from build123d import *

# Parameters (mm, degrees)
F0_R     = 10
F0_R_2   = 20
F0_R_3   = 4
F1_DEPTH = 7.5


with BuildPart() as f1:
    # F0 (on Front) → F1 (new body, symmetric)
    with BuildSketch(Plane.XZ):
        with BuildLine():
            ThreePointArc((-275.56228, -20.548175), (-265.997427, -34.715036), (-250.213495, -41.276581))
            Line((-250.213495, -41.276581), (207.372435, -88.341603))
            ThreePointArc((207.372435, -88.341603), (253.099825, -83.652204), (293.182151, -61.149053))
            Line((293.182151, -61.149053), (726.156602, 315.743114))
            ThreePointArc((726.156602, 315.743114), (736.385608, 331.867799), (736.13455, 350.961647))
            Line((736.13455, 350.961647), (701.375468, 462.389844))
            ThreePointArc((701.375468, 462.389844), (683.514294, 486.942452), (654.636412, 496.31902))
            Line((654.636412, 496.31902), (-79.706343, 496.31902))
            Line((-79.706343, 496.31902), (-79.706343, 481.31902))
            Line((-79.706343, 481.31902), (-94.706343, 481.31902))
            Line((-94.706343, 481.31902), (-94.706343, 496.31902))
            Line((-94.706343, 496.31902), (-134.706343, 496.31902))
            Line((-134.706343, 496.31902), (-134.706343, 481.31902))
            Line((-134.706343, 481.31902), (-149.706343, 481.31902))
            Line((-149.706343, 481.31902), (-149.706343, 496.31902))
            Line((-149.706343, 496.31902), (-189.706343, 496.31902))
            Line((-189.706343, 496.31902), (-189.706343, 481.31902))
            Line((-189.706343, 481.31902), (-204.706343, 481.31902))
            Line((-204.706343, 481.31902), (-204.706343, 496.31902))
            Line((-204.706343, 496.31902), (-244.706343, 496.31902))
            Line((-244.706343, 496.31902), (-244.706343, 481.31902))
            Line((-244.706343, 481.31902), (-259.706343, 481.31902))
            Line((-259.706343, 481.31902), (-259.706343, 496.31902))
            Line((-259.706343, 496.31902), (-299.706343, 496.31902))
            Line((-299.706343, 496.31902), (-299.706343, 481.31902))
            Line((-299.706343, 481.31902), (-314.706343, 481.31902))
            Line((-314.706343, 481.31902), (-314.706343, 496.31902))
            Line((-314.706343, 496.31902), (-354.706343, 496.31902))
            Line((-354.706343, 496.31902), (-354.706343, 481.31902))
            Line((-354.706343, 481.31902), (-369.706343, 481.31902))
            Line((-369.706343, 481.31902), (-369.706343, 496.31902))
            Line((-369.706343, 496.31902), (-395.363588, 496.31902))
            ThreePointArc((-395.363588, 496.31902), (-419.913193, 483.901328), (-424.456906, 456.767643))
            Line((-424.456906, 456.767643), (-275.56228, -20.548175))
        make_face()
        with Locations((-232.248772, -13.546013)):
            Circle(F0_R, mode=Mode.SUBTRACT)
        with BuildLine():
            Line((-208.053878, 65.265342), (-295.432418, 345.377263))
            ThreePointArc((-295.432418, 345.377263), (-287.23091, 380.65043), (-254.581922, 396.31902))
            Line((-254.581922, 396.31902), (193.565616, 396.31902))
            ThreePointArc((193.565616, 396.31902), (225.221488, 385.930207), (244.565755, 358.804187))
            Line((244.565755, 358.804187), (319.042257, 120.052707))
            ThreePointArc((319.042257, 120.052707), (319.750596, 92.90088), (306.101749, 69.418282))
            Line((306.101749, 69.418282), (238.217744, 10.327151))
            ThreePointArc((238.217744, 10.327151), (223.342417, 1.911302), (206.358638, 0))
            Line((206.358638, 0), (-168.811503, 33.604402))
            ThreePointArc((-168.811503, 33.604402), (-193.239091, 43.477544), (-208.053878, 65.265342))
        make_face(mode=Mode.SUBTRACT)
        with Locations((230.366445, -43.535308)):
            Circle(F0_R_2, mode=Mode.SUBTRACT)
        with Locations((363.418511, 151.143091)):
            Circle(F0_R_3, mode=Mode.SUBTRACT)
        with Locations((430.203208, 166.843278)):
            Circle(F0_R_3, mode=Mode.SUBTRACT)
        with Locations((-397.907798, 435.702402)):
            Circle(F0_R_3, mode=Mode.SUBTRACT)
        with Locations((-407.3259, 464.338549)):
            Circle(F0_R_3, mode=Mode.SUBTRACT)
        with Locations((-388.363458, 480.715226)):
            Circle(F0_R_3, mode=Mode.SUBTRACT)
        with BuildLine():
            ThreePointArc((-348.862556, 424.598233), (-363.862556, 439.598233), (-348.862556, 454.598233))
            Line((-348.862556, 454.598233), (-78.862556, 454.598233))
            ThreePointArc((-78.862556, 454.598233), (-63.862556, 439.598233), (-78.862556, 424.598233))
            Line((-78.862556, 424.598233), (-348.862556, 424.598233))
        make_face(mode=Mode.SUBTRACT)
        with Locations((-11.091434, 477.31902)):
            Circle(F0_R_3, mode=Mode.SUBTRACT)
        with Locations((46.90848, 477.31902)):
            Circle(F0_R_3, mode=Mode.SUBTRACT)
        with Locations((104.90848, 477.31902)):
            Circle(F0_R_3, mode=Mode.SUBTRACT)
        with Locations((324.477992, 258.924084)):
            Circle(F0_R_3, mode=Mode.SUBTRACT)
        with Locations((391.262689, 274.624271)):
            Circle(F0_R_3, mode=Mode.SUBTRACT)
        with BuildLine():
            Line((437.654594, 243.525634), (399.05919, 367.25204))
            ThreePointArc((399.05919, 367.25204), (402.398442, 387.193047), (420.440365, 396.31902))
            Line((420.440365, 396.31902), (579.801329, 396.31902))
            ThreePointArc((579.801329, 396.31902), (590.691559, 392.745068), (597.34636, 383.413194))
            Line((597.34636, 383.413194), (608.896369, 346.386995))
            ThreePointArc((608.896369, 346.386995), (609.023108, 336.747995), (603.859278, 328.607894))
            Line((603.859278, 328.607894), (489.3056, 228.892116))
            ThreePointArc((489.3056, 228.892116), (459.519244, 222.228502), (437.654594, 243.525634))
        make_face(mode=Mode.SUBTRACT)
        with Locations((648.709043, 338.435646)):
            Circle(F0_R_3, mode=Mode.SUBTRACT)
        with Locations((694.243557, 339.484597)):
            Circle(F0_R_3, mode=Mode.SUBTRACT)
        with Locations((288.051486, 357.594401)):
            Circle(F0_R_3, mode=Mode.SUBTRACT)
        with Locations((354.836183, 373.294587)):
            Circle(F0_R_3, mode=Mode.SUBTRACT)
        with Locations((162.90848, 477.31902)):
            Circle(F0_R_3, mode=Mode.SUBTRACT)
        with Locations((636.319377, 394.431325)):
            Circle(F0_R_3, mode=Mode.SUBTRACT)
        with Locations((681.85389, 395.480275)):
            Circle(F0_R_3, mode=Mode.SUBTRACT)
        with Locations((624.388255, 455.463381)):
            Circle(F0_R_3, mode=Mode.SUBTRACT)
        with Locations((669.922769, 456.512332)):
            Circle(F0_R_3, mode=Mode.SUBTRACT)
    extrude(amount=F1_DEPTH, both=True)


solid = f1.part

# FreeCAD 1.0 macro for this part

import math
import FreeCAD as App
import Part
import Sketcher
from FreeCAD import Vector

doc = App.newDocument("Part")
body = doc.addObject("PartDesign::Body", "Body")

# Sketch on XZ plane
sketch1 = body.newObject("Sketcher::SketchObject", "Sketch")
sketch1.AttachmentSupport = (doc.getObject("XZ_Plane"), [""])
sketch1.MapMode = "FlatFace"
sketch1.addGeometry([
    Part.ArcOfCircle(Part.Circle(Vector(-247.170532, -11.691611, 0), Vector(0, 0, 1), 29.741051), math.radians(-162.675133), math.radians(-95.872509)),  # 0
    Part.LineSegment(Vector(-250.213495, -41.276581, 0), Vector(207.372435, -88.341603, 0)),  # 1
    Part.ArcOfCircle(Part.Circle(Vector(218.941598, 24.138635, 0), Vector(0, 0, 1), 113.073647), math.radians(-95.872511), math.radians(-48.961338)),  # 2
    Part.LineSegment(Vector(293.182151, -61.149053, 0), Vector(726.156602, 315.743114, 0)),  # 3
    Part.ArcOfCircle(Part.Circle(Vector(704.177389, 340.992879, 0), Vector(0, 0, 1), 33.475909), math.radians(-48.961343), math.radians(17.324872)),  # 4
    Part.LineSegment(Vector(736.13455, 350.961647, 0), Vector(701.375468, 462.389844, 0)),  # 5
    Part.ArcOfCircle(Part.Circle(Vector(654.636411, 447.161792, 0), Vector(0, 0, 1), 49.157228), math.radians(18.046127), math.radians(89.999998)),  # 6
    Part.LineSegment(Vector(654.636412, 496.31902, 0), Vector(-79.706343, 496.31902, 0)),  # 7
    Part.LineSegment(Vector(-79.706343, 496.31902, 0), Vector(-79.706343, 481.31902, 0)),  # 8
    Part.LineSegment(Vector(-79.706343, 481.31902, 0), Vector(-94.706343, 481.31902, 0)),  # 9
    Part.LineSegment(Vector(-94.706343, 481.31902, 0), Vector(-94.706343, 496.31902, 0)),  # 10
    Part.LineSegment(Vector(-94.706343, 496.31902, 0), Vector(-134.706343, 496.31902, 0)),  # 11
    Part.LineSegment(Vector(-134.706343, 496.31902, 0), Vector(-134.706343, 481.31902, 0)),  # 12
    Part.LineSegment(Vector(-134.706343, 481.31902, 0), Vector(-149.706343, 481.31902, 0)),  # 13
    Part.LineSegment(Vector(-149.706343, 481.31902, 0), Vector(-149.706343, 496.31902, 0)),  # 14
    Part.LineSegment(Vector(-149.706343, 496.31902, 0), Vector(-189.706343, 496.31902, 0)),  # 15
    Part.LineSegment(Vector(-189.706343, 496.31902, 0), Vector(-189.706343, 481.31902, 0)),  # 16
    Part.LineSegment(Vector(-189.706343, 481.31902, 0), Vector(-204.706343, 481.31902, 0)),  # 17
    Part.LineSegment(Vector(-204.706343, 481.31902, 0), Vector(-204.706343, 496.31902, 0)),  # 18
    Part.LineSegment(Vector(-204.706343, 496.31902, 0), Vector(-244.706343, 496.31902, 0)),  # 19
    Part.LineSegment(Vector(-244.706343, 496.31902, 0), Vector(-244.706343, 481.31902, 0)),  # 20
    Part.LineSegment(Vector(-244.706343, 481.31902, 0), Vector(-259.706343, 481.31902, 0)),  # 21
    Part.LineSegment(Vector(-259.706343, 481.31902, 0), Vector(-259.706343, 496.31902, 0)),  # 22
    Part.LineSegment(Vector(-259.706343, 496.31902, 0), Vector(-299.706343, 496.31902, 0)),  # 23
    Part.LineSegment(Vector(-299.706343, 496.31902, 0), Vector(-299.706343, 481.31902, 0)),  # 24
    Part.LineSegment(Vector(-299.706343, 481.31902, 0), Vector(-314.706343, 481.31902, 0)),  # 25
    Part.LineSegment(Vector(-314.706343, 481.31902, 0), Vector(-314.706343, 496.31902, 0)),  # 26
    Part.LineSegment(Vector(-314.706343, 496.31902, 0), Vector(-354.706343, 496.31902, 0)),  # 27
    Part.LineSegment(Vector(-354.706343, 496.31902, 0), Vector(-354.706343, 481.31902, 0)),  # 28
    Part.LineSegment(Vector(-354.706343, 481.31902, 0), Vector(-369.706343, 481.31902, 0)),  # 29
    Part.LineSegment(Vector(-369.706343, 481.31902, 0), Vector(-369.706343, 496.31902, 0)),  # 30
    Part.LineSegment(Vector(-369.706343, 496.31902, 0), Vector(-395.363588, 496.31902, 0)),  # 31
    Part.ArcOfCircle(Part.Circle(Vector(-395.363586, 465.843056, 0), Vector(0, 0, 1), 30.475964), math.radians(90.000003), math.radians(197.324866)),  # 32
    Part.LineSegment(Vector(-424.456906, 456.767643, 0), Vector(-275.56228, -20.548175, 0)),  # 33
    Part.Circle(Vector(-232.248772, -13.546013, 0), Vector(0, 0, 1), 10),  # 34
    Part.ArcOfCircle(Part.Circle(Vector(-164.766096, 78.768599, 0), Vector(0, 0, 1), 45.345011), math.radians(-162.675131), math.radians(-95.118387)),  # 35
    Part.LineSegment(Vector(-208.053878, 65.265342, 0), Vector(-295.432418, 345.377263, 0)),  # 36
    Part.ArcOfCircle(Part.Circle(Vector(-254.581921, 354.469014, 0), Vector(0, 0, 1), 41.850006), math.radians(90.000001), math.radians(192.547335)),  # 37
    Part.LineSegment(Vector(-254.581922, 396.31902, 0), Vector(193.565616, 396.31902, 0)),  # 38
    Part.ArcOfCircle(Part.Circle(Vector(193.565616, 342.895126, 0), Vector(0, 0, 1), 53.423894), math.radians(17.324868), math.radians(90)),  # 39
    Part.LineSegment(Vector(244.565755, 358.804187, 0), Vector(319.042257, 120.052707, 0)),  # 40
    Part.ArcOfCircle(Part.Circle(Vector(271.517367, 105.227721, 0), Vector(0, 0, 1), 49.783485), math.radians(-45.997012), math.radians(17.324868)),  # 41
    Part.LineSegment(Vector(306.101749, 69.418282, 0), Vector(238.217744, 10.327151, 0)),  # 42
    Part.ArcOfCircle(Part.Circle(Vector(210.169773, 42.548714, 0), Vector(0, 0, 1), 42.719057), math.radians(-95.118386), math.radians(-48.961339)),  # 43
    Part.LineSegment(Vector(206.358638, 0, 0), Vector(-168.811503, 33.604402, 0)),  # 44
    Part.Circle(Vector(230.366445, -43.535308, 0), Vector(0, 0, 1), 20),  # 45
    Part.Circle(Vector(363.418511, 151.143091, 0), Vector(0, 0, 1), 4),  # 46
    Part.Circle(Vector(430.203208, 166.843278, 0), Vector(0, 0, 1), 4),  # 47
    Part.Circle(Vector(-397.907798, 435.702402, 0), Vector(0, 0, 1), 4),  # 48
    Part.Circle(Vector(-407.3259, 464.338549, 0), Vector(0, 0, 1), 4),  # 49
    Part.Circle(Vector(-388.363458, 480.715226, 0), Vector(0, 0, 1), 4),  # 50
    Part.LineSegment(Vector(-78.862556, 424.598233, 0), Vector(-348.862556, 424.598233, 0)),  # 51
    Part.ArcOfCircle(Part.Circle(Vector(-348.862556, 439.598233, 0), Vector(0, 0, 1), 15), math.radians(90), math.radians(270)),  # 52
    Part.LineSegment(Vector(-348.862556, 454.598233, 0), Vector(-78.862556, 454.598233, 0)),  # 53
    Part.ArcOfCircle(Part.Circle(Vector(-78.862556, 439.598233, 0), Vector(0, 0, 1), 15), math.radians(-90), math.radians(90)),  # 54
    Part.Circle(Vector(-11.091434, 477.31902, 0), Vector(0, 0, 1), 4),  # 55
    Part.Circle(Vector(46.90848, 477.31902, 0), Vector(0, 0, 1), 4),  # 56
    Part.Circle(Vector(104.90848, 477.31902, 0), Vector(0, 0, 1), 4),  # 57
    Part.Circle(Vector(324.477992, 258.924084, 0), Vector(0, 0, 1), 4),  # 58
    Part.Circle(Vector(391.262689, 274.624271, 0), Vector(0, 0, 1), 4),  # 59
    Part.ArcOfCircle(Part.Circle(Vector(468.25768, 253.072008, 0), Vector(0, 0, 1), 32.057481), math.radians(-162.67513), math.radians(-48.96134)),  # 60
    Part.LineSegment(Vector(437.654594, 243.525634, 0), Vector(399.05919, 367.25204, 0)),  # 61
    Part.ArcOfCircle(Part.Circle(Vector(420.440366, 373.921716, 0), Vector(0, 0, 1), 22.397304), math.radians(90.000001), math.radians(197.324866)),  # 62
    Part.LineSegment(Vector(420.440365, 396.31902, 0), Vector(579.801329, 396.31902, 0)),  # 63
    Part.ArcOfCircle(Part.Circle(Vector(579.801328, 377.94017, 0), Vector(0, 0, 1), 18.37885), math.radians(17.324868), math.radians(89.999998)),  # 64
    Part.LineSegment(Vector(597.34636, 383.413194, 0), Vector(608.896369, 346.386995, 0)),  # 65
    Part.ArcOfCircle(Part.Circle(Vector(592.763678, 341.35454, 0), Vector(0, 0, 1), 16.899389), math.radians(-48.961337), math.radians(17.324864)),  # 66
    Part.LineSegment(Vector(603.859278, 328.607894, 0), Vector(489.3056, 228.892116, 0)),  # 67
    Part.Circle(Vector(648.709043, 338.435646, 0), Vector(0, 0, 1), 4),  # 68
    Part.Circle(Vector(694.243557, 339.484597, 0), Vector(0, 0, 1), 4),  # 69
    Part.Circle(Vector(288.051486, 357.594401, 0), Vector(0, 0, 1), 4),  # 70
    Part.Circle(Vector(354.836183, 373.294587, 0), Vector(0, 0, 1), 4),  # 71
    Part.Circle(Vector(162.90848, 477.31902, 0), Vector(0, 0, 1), 4),  # 72
    Part.Circle(Vector(636.319377, 394.431325, 0), Vector(0, 0, 1), 4),  # 73
    Part.Circle(Vector(681.85389, 395.480275, 0), Vector(0, 0, 1), 4),  # 74
    Part.Circle(Vector(624.388255, 455.463381, 0), Vector(0, 0, 1), 4),  # 75
    Part.Circle(Vector(669.922769, 456.512332, 0), Vector(0, 0, 1), 4),  # 76
], False)
sketch1.addConstraint([
    Sketcher.Constraint("Coincident", 0, 2, 1, 1),
    Sketcher.Constraint("Coincident", 1, 2, 2, 1),
    Sketcher.Constraint("Coincident", 2, 2, 3, 1),
    Sketcher.Constraint("Coincident", 3, 2, 4, 1),
    Sketcher.Constraint("Coincident", 4, 2, 5, 1),
    Sketcher.Constraint("Coincident", 5, 2, 6, 1),
    Sketcher.Constraint("Coincident", 6, 2, 7, 1),
    Sketcher.Constraint("Coincident", 7, 2, 8, 1),
    Sketcher.Constraint("Coincident", 8, 2, 9, 1),
    Sketcher.Constraint("Coincident", 9, 2, 10, 1),
    Sketcher.Constraint("Coincident", 10, 2, 11, 1),
    Sketcher.Constraint("Coincident", 11, 2, 12, 1),
    Sketcher.Constraint("Coincident", 12, 2, 13, 1),
    Sketcher.Constraint("Coincident", 13, 2, 14, 1),
    Sketcher.Constraint("Coincident", 14, 2, 15, 1),
    Sketcher.Constraint("Coincident", 15, 2, 16, 1),
    Sketcher.Constraint("Coincident", 16, 2, 17, 1),
    Sketcher.Constraint("Coincident", 17, 2, 18, 1),
    Sketcher.Constraint("Coincident", 18, 2, 19, 1),
    Sketcher.Constraint("Coincident", 19, 2, 20, 1),
    Sketcher.Constraint("Coincident", 20, 2, 21, 1),
    Sketcher.Constraint("Coincident", 21, 2, 22, 1),
    Sketcher.Constraint("Coincident", 22, 2, 23, 1),
    Sketcher.Constraint("Coincident", 23, 2, 24, 1),
    Sketcher.Constraint("Coincident", 24, 2, 25, 1),
    Sketcher.Constraint("Coincident", 25, 2, 26, 1),
    Sketcher.Constraint("Coincident", 26, 2, 27, 1),
    Sketcher.Constraint("Coincident", 27, 2, 28, 1),
    Sketcher.Constraint("Coincident", 28, 2, 29, 1),
    Sketcher.Constraint("Coincident", 29, 2, 30, 1),
    Sketcher.Constraint("Coincident", 30, 2, 31, 1),
    Sketcher.Constraint("Coincident", 31, 2, 32, 1),
    Sketcher.Constraint("Coincident", 32, 2, 33, 1),
    Sketcher.Constraint("Coincident", 33, 2, 0, 1),
    Sketcher.Constraint("Coincident", 35, 1, 36, 1),
    Sketcher.Constraint("Coincident", 36, 2, 37, 2),
    Sketcher.Constraint("Coincident", 37, 1, 38, 1),
    Sketcher.Constraint("Coincident", 38, 2, 39, 2),
    Sketcher.Constraint("Coincident", 39, 1, 40, 1),
    Sketcher.Constraint("Coincident", 40, 2, 41, 2),
    Sketcher.Constraint("Coincident", 41, 1, 42, 1),
    Sketcher.Constraint("Coincident", 42, 2, 43, 2),
    Sketcher.Constraint("Coincident", 43, 1, 44, 1),
    Sketcher.Constraint("Coincident", 44, 2, 35, 2),
    Sketcher.Constraint("Coincident", 51, 2, 52, 2),
    Sketcher.Constraint("Coincident", 52, 1, 53, 1),
    Sketcher.Constraint("Coincident", 53, 2, 54, 2),
    Sketcher.Constraint("Coincident", 54, 1, 51, 1),
    Sketcher.Constraint("Coincident", 60, 1, 61, 1),
    Sketcher.Constraint("Coincident", 61, 2, 62, 2),
    Sketcher.Constraint("Coincident", 62, 1, 63, 1),
    Sketcher.Constraint("Coincident", 63, 2, 64, 2),
    Sketcher.Constraint("Coincident", 64, 1, 65, 1),
    Sketcher.Constraint("Coincident", 65, 2, 66, 2),
    Sketcher.Constraint("Coincident", 66, 1, 67, 1),
    Sketcher.Constraint("Coincident", 67, 2, 60, 2),
    Sketcher.Constraint("Horizontal", 7),
    Sketcher.Constraint("Vertical", 8),
    Sketcher.Constraint("Horizontal", 9),
    Sketcher.Constraint("Vertical", 10),
    Sketcher.Constraint("Horizontal", 11),
    Sketcher.Constraint("Vertical", 12),
    Sketcher.Constraint("Horizontal", 13),
    Sketcher.Constraint("Vertical", 14),
    Sketcher.Constraint("Horizontal", 15),
    Sketcher.Constraint("Vertical", 16),
    Sketcher.Constraint("Horizontal", 17),
    Sketcher.Constraint("Vertical", 18),
    Sketcher.Constraint("Horizontal", 19),
    Sketcher.Constraint("Vertical", 20),
    Sketcher.Constraint("Horizontal", 21),
    Sketcher.Constraint("Vertical", 22),
    Sketcher.Constraint("Horizontal", 23),
    Sketcher.Constraint("Vertical", 24),
    Sketcher.Constraint("Horizontal", 25),
    Sketcher.Constraint("Vertical", 26),
    Sketcher.Constraint("Horizontal", 27),
    Sketcher.Constraint("Vertical", 28),
    Sketcher.Constraint("Horizontal", 29),
    Sketcher.Constraint("Vertical", 30),
    Sketcher.Constraint("Horizontal", 31),
    Sketcher.Constraint("Horizontal", 38),
    Sketcher.Constraint("Horizontal", 51),
    Sketcher.Constraint("Horizontal", 53),
    Sketcher.Constraint("Horizontal", 63),
    Sketcher.Constraint("PointOnObject", 43, 1, -1),
    Sketcher.Constraint("Diameter", 34, 20.0),
    Sketcher.Constraint("Diameter", 45, 40.0),
    Sketcher.Constraint("Diameter", 46, 8.0),
    Sketcher.Constraint("Diameter", 47, 8.0),
    Sketcher.Constraint("Diameter", 48, 8.0),
    Sketcher.Constraint("Diameter", 49, 8.0),
    Sketcher.Constraint("Diameter", 50, 8.0),
    Sketcher.Constraint("Diameter", 55, 8.0),
    Sketcher.Constraint("Diameter", 56, 8.0),
    Sketcher.Constraint("Diameter", 57, 8.0),
    Sketcher.Constraint("Diameter", 58, 8.0),
    Sketcher.Constraint("Diameter", 59, 8.0),
    Sketcher.Constraint("Diameter", 68, 8.0),
    Sketcher.Constraint("Diameter", 69, 8.0),
    Sketcher.Constraint("Diameter", 70, 8.0),
    Sketcher.Constraint("Diameter", 71, 8.0),
    Sketcher.Constraint("Diameter", 72, 8.0),
    Sketcher.Constraint("Diameter", 73, 8.0),
    Sketcher.Constraint("Diameter", 74, 8.0),
    Sketcher.Constraint("Diameter", 75, 8.0),
    Sketcher.Constraint("Diameter", 76, 8.0),
    Sketcher.Constraint("Radius", 52, 15.0),
    Sketcher.Constraint("DistanceX", 9, 2, 9, 1, 15.0),
    Sketcher.Constraint("DistanceX", 11, 2, 11, 1, 40.0),
    Sketcher.Constraint("DistanceX", 13, 2, 13, 1, 15.0),
    Sketcher.Constraint("DistanceX", 15, 2, 15, 1, 40.0),
    Sketcher.Constraint("DistanceX", 17, 2, 17, 1, 15.0),
    Sketcher.Constraint("DistanceX", 19, 2, 19, 1, 40.0),
    Sketcher.Constraint("DistanceX", 21, 2, 21, 1, 15.0),
    Sketcher.Constraint("DistanceX", 23, 2, 23, 1, 40.0),
    Sketcher.Constraint("DistanceX", 25, 2, 25, 1, 15.0),
    Sketcher.Constraint("DistanceX", 27, 2, 27, 1, 40.0),
    Sketcher.Constraint("DistanceX", 29, 2, 29, 1, 15.0),
    Sketcher.Constraint("DistanceX", 51, 2, 51, 1, 270.0),
    Sketcher.Constraint("DistanceX", 53, 1, 53, 2, 270.0),
    Sketcher.Constraint("DistanceY", 8, 2, 8, 1, 15.0),
    Sketcher.Constraint("DistanceY", 10, 1, 10, 2, 15.0),
    Sketcher.Constraint("DistanceY", 12, 2, 12, 1, 15.0),
    Sketcher.Constraint("DistanceY", 14, 1, 14, 2, 15.0),
    Sketcher.Constraint("DistanceY", 16, 2, 16, 1, 15.0),
    Sketcher.Constraint("DistanceY", 18, 1, 18, 2, 15.0),
    Sketcher.Constraint("DistanceY", 20, 2, 20, 1, 15.0),
    Sketcher.Constraint("DistanceY", 22, 1, 22, 2, 15.0),
    Sketcher.Constraint("DistanceY", 24, 2, 24, 1, 15.0),
    Sketcher.Constraint("DistanceY", 26, 1, 26, 2, 15.0),
    Sketcher.Constraint("DistanceY", 28, 2, 28, 1, 15.0),
    Sketcher.Constraint("DistanceY", 30, 1, 30, 2, 15.0),
    Sketcher.Constraint("Distance", 1, 460.0),
    Sketcher.Constraint("Distance", 33, 500.0),
    Sketcher.Constraint("Distance", 42, 89.999999),
    Sketcher.Constraint("Radius", 0, 29.741051),
    Sketcher.Constraint("Radius", 4, 33.475909),
    Sketcher.Constraint("Radius", 35, 45.345011),
    Sketcher.Constraint("Radius", 60, 32.057481),
    Sketcher.Constraint("Radius", 64, 18.37885),
    Sketcher.Constraint("Radius", 66, 16.899389),
    Sketcher.Constraint("Radius", 2, 113.073647),
    Sketcher.Constraint("Radius", 6, 49.157228),
    Sketcher.Constraint("Radius", 32, 30.475964),
    Sketcher.Constraint("Radius", 37, 41.850006),
    Sketcher.Constraint("Radius", 39, 53.423894),
    Sketcher.Constraint("Radius", 41, 49.783485),
    Sketcher.Constraint("Radius", 43, 42.719057),
    Sketcher.Constraint("Radius", 62, 22.397304),
    Sketcher.Constraint("DistanceX", 38, 1, 38, 2, 448.147538),
    Sketcher.Constraint("DistanceY", -1, 1, 35, 3, 78.768599),
    Sketcher.Constraint("DistanceX", 48, 3, -1, 1, 397.907798),
    Sketcher.Constraint("DistanceY", -1, 1, 48, 3, 435.702402),
    Sketcher.Constraint("DistanceX", 49, 3, -1, 1, 407.3259),
    Sketcher.Constraint("DistanceY", -1, 1, 70, 3, 357.594401),
    Sketcher.Constraint("DistanceX", -1, 1, 3, 2, 726.156602),
    Sketcher.Constraint("DistanceX", -1, 1, 67, 2, 489.3056),
    Sketcher.Constraint("Distance", 36, 293.424092),
    Sketcher.Constraint("Distance", 65, 38.785849),
    Sketcher.Constraint("Distance", 67, 151.874229),
    Sketcher.Constraint("DistanceX", 7, 2, 7, 1, 734.342755),
    Sketcher.Constraint("DistanceX", 31, 2, 31, 1, 25.657245),
    Sketcher.Constraint("DistanceX", 63, 1, 63, 2, 159.360964),
    Sketcher.Constraint("DistanceX", 0, 3, -1, 1, 247.170532),
    Sketcher.Constraint("DistanceY", 0, 3, -1, 1, 11.691611),
    Sketcher.Constraint("DistanceX", -1, 1, 4, 3, 704.177389),
    Sketcher.Constraint("DistanceY", -1, 1, 4, 3, 340.992879),
    Sketcher.Constraint("DistanceX", -1, 1, 6, 3, 654.636411),
    Sketcher.Constraint("DistanceX", 34, 3, -1, 1, 232.248772),
    Sketcher.Constraint("DistanceX", 37, 3, -1, 1, 254.581921),
    Sketcher.Constraint("DistanceY", -1, 1, 41, 3, 105.227721),
    Sketcher.Constraint("DistanceX", -1, 1, 46, 3, 363.418511),
    Sketcher.Constraint("DistanceY", -1, 1, 46, 3, 151.143091),
    Sketcher.Constraint("DistanceX", -1, 1, 47, 3, 430.203208),
    Sketcher.Constraint("DistanceY", -1, 1, 47, 3, 166.843278),
    Sketcher.Constraint("DistanceY", -1, 1, 49, 3, 464.338549),
    Sketcher.Constraint("DistanceX", 50, 3, -1, 1, 388.363458),
    Sketcher.Constraint("DistanceY", -1, 1, 55, 3, 477.31902),
    Sketcher.Constraint("DistanceX", -1, 1, 56, 3, 46.90848),
    Sketcher.Constraint("DistanceY", -1, 1, 56, 3, 477.31902),
    Sketcher.Constraint("DistanceX", -1, 1, 57, 3, 104.90848),
    Sketcher.Constraint("DistanceY", -1, 1, 57, 3, 477.31902),
    Sketcher.Constraint("DistanceX", -1, 1, 58, 3, 324.477992),
    Sketcher.Constraint("DistanceX", -1, 1, 59, 3, 391.262689),
    Sketcher.Constraint("DistanceY", -1, 1, 59, 3, 274.624271),
    Sketcher.Constraint("DistanceX", -1, 1, 60, 3, 468.25768),
    Sketcher.Constraint("DistanceX", -1, 1, 64, 3, 579.801328),
    Sketcher.Constraint("DistanceY", -1, 1, 64, 3, 377.94017),
    Sketcher.Constraint("DistanceY", -1, 1, 66, 3, 341.35454),
    Sketcher.Constraint("DistanceX", -1, 1, 72, 3, 162.90848),
    Sketcher.Constraint("DistanceY", -1, 1, 72, 3, 477.31902),
    Sketcher.Constraint("DistanceX", -1, 1, 74, 3, 681.85389),
    Sketcher.Constraint("DistanceY", -1, 1, 75, 3, 455.463381),
    Sketcher.Constraint("DistanceX", -1, 1, 76, 3, 669.922769),
    Sketcher.Constraint("DistanceY", -1, 1, 76, 3, 456.512332),
    Sketcher.Constraint("DistanceY", 0, 2, -1, 1, 41.276581),
    Sketcher.Constraint("DistanceX", -1, 1, 2, 2, 293.182151),
    Sketcher.Constraint("DistanceX", -1, 1, 4, 2, 736.13455),
    Sketcher.Constraint("DistanceX", -1, 1, 5, 2, 701.375468),
    Sketcher.Constraint("DistanceX", -1, 1, 6, 2, 654.636412),
    Sketcher.Constraint("DistanceY", -1, 1, 6, 2, 496.31902),
    Sketcher.Constraint("DistanceX", 33, 2, -1, 1, 275.56228),
    Sketcher.Constraint("DistanceX", 35, 1, -1, 1, 208.053878),
    Sketcher.Constraint("DistanceY", -1, 1, 35, 1, 65.265342),
    Sketcher.Constraint("DistanceX", 36, 2, -1, 1, 295.432418),
    Sketcher.Constraint("DistanceX", 37, 1, -1, 1, 254.581922),
    Sketcher.Constraint("DistanceX", -1, 1, 41, 1, 306.101749),
    Sketcher.Constraint("DistanceY", -1, 1, 41, 1, 69.418282),
    Sketcher.Constraint("DistanceY", -1, 1, 42, 2, 10.327151),
    Sketcher.Constraint("DistanceX", -1, 1, 43, 1, 206.358638),
    Sketcher.Constraint("DistanceX", -1, 1, 61, 2, 399.05919),
    Sketcher.Constraint("DistanceY", -1, 1, 61, 2, 367.25204),
    Sketcher.Constraint("DistanceX", -1, 1, 63, 2, 579.801329),
    Sketcher.Constraint("DistanceX", -1, 1, 64, 1, 597.34636),
    Sketcher.Constraint("DistanceX", -1, 1, 65, 2, 608.896369),
    Sketcher.Constraint("Distance", 3, 574.033606),
    Sketcher.Constraint("Distance", 40, 250.098018),
    Sketcher.Constraint("Distance", 44, 376.672126),
    Sketcher.Constraint("Distance", 61, 129.606438),
    Sketcher.Constraint("DistanceX", -1, 1, 2, 3, 218.941598),
    Sketcher.Constraint("DistanceX", 32, 3, -1, 1, 395.363586),
    Sketcher.Constraint("DistanceY", 34, 3, -1, 1, 13.546013),
    Sketcher.Constraint("DistanceX", -1, 1, 39, 3, 193.565616),
    Sketcher.Constraint("DistanceX", -1, 1, 45, 3, 230.366445),
    Sketcher.Constraint("DistanceY", 45, 3, -1, 1, 43.535308),
    Sketcher.Constraint("DistanceY", -1, 1, 50, 3, 480.715226),
    Sketcher.Constraint("DistanceX", 52, 3, -1, 1, 348.862556),
    Sketcher.Constraint("DistanceY", -1, 1, 52, 3, 439.598233),
    Sketcher.Constraint("DistanceX", 54, 3, -1, 1, 78.862556),
    Sketcher.Constraint("DistanceX", 55, 3, -1, 1, 11.091434),
    Sketcher.Constraint("DistanceY", -1, 1, 58, 3, 258.924084),
    Sketcher.Constraint("DistanceY", -1, 1, 60, 3, 253.072008),
    Sketcher.Constraint("DistanceX", -1, 1, 68, 3, 648.709043),
    Sketcher.Constraint("DistanceY", -1, 1, 68, 3, 338.435646),
    Sketcher.Constraint("DistanceX", -1, 1, 69, 3, 694.243557),
    Sketcher.Constraint("DistanceY", -1, 1, 69, 3, 339.484597),
    Sketcher.Constraint("DistanceX", -1, 1, 70, 3, 288.051486),
    Sketcher.Constraint("DistanceX", -1, 1, 71, 3, 354.836183),
    Sketcher.Constraint("DistanceY", -1, 1, 71, 3, 373.294587),
    Sketcher.Constraint("DistanceX", -1, 1, 73, 3, 636.319377),
    Sketcher.Constraint("DistanceY", -1, 1, 73, 3, 394.431325),
    Sketcher.Constraint("DistanceY", -1, 1, 74, 3, 395.480275),
    Sketcher.Constraint("DistanceX", -1, 1, 75, 3, 624.388255),
    Sketcher.Constraint("DistanceX", -1, 1, 39, 1, 244.565755),
    Sketcher.Constraint("DistanceX", 51, 2, -1, 1, 348.862556),
    Sketcher.Constraint("DistanceX", 52, 1, -1, 1, 348.862556),
])
pad1 = body.newObject("PartDesign::Pad", "Pad")
pad1.Profile = sketch1
pad1.Length = 15
pad1.Midplane = True

doc.recompute()
